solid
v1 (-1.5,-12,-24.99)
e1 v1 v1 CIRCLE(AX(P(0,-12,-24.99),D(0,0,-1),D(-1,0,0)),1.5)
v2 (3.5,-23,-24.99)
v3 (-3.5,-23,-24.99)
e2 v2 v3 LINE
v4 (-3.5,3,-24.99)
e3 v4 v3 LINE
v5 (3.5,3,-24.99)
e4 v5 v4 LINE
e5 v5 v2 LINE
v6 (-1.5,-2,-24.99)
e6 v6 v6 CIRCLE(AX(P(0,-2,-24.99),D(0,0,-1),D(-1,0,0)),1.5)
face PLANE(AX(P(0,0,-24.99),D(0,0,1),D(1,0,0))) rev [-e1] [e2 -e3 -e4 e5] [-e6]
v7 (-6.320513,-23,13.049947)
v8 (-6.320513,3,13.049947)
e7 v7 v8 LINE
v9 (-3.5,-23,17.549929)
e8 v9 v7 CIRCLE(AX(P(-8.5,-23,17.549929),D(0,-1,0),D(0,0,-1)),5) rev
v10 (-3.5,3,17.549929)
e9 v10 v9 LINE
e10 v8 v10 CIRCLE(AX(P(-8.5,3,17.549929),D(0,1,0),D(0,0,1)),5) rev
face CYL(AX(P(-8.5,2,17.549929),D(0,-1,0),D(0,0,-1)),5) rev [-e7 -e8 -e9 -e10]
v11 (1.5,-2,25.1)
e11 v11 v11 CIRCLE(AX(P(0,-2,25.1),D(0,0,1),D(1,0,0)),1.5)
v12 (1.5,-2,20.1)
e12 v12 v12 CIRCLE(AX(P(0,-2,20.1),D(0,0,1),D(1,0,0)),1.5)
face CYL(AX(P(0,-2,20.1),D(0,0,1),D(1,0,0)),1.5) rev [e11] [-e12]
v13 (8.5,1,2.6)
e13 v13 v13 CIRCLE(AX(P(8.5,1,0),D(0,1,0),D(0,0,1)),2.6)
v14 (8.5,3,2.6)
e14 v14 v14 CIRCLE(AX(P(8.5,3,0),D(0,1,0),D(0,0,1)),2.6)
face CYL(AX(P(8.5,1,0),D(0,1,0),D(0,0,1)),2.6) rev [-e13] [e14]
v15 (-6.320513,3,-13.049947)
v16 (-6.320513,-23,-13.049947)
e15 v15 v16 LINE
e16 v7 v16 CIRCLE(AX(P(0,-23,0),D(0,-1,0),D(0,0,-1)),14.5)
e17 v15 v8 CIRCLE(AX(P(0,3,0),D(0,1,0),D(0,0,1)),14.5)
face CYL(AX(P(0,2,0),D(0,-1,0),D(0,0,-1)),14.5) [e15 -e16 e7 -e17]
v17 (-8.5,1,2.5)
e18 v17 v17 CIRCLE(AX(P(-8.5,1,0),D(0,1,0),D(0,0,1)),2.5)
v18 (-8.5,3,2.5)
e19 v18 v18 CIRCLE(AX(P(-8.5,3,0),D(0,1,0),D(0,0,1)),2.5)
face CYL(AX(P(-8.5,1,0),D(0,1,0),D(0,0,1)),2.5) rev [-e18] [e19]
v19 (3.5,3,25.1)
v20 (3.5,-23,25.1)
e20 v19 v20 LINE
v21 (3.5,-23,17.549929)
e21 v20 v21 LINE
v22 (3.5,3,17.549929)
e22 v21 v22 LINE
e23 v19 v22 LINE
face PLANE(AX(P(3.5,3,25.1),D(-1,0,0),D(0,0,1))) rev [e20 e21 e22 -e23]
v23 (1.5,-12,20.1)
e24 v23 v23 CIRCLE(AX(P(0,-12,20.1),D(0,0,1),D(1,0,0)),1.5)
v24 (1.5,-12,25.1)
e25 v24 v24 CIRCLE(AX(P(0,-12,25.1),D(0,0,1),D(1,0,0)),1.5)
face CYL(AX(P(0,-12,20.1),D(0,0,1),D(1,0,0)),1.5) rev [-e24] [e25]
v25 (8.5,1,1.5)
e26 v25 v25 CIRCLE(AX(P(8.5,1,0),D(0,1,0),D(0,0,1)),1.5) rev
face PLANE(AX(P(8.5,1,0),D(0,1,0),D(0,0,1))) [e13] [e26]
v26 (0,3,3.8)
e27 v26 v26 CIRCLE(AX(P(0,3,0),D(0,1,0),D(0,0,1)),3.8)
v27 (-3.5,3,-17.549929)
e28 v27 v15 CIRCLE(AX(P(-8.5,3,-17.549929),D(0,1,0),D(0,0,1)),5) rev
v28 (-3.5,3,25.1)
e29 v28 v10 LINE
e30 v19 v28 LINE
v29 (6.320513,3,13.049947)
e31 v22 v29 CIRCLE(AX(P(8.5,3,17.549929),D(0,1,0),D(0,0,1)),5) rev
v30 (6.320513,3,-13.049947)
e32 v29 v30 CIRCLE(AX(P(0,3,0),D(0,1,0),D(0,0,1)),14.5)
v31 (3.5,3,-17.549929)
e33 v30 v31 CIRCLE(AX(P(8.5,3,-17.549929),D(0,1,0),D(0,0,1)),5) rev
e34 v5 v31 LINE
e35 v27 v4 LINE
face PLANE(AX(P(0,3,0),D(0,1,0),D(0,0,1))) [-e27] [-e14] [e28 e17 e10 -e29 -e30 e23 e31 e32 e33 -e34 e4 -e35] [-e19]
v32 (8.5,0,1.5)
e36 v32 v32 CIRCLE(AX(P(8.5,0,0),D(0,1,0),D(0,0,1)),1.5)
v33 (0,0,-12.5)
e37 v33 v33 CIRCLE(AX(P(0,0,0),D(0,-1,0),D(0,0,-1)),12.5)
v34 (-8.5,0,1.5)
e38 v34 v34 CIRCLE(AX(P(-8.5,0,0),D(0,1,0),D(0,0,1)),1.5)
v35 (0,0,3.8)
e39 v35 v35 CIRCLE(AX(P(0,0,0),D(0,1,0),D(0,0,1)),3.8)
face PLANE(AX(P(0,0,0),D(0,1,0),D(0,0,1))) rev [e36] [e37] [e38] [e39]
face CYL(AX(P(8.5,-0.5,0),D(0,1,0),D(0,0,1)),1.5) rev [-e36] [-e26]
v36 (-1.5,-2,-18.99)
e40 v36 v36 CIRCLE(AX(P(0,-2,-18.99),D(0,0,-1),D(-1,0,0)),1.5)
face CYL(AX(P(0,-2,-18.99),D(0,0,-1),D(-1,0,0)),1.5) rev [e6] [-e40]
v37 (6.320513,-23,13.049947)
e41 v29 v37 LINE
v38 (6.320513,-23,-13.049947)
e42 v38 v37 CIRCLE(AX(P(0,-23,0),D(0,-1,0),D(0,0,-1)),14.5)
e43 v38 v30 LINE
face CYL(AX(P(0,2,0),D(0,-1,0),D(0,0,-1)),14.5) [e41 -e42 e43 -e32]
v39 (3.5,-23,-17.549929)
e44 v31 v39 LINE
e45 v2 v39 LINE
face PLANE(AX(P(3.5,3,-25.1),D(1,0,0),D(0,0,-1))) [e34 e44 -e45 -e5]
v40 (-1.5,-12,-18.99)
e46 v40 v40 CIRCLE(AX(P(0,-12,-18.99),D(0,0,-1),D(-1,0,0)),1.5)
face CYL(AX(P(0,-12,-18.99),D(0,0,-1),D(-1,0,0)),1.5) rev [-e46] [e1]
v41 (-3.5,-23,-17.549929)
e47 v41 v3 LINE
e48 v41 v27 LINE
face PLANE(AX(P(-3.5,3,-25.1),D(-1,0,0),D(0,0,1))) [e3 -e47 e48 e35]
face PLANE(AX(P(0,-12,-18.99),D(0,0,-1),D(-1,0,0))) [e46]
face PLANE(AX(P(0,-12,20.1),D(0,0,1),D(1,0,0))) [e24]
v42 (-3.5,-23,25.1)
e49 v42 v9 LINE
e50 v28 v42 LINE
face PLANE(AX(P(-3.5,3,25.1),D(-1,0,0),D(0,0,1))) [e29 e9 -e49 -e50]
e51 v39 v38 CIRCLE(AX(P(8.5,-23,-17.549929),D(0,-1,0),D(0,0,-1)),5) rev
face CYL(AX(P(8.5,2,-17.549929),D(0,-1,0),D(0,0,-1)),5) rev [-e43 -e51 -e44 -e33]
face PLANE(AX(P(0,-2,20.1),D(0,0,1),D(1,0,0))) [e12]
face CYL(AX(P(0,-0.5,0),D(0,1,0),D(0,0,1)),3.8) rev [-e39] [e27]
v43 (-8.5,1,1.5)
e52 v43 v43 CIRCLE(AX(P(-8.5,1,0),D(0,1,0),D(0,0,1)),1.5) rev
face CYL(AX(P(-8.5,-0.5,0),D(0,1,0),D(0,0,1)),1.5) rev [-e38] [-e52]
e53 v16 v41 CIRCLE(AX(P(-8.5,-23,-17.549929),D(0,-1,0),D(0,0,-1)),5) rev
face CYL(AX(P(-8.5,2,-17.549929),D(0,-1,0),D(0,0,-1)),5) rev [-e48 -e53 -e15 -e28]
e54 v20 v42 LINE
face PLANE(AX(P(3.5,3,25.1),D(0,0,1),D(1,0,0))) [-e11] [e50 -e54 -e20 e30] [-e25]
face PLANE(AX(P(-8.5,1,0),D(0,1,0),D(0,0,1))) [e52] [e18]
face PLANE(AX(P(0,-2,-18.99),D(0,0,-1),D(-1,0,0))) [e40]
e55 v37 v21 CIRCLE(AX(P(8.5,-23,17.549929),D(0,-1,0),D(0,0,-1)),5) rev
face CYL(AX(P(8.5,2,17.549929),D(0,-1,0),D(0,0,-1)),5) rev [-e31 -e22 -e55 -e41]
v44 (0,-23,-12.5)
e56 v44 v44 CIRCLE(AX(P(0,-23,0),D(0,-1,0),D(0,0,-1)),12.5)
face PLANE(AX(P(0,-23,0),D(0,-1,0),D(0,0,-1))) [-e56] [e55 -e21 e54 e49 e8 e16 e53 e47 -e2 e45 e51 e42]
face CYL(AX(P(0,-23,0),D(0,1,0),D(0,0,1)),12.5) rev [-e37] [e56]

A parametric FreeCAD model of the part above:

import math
import FreeCAD as App
import Part
import Sketcher
Q = App.Units.Quantity


def edges_at(feature, points):
    """Names of the edges that pass closest to the given points."""
    edges = feature.Shape.Edges
    near = lambda p: min(range(len(edges)), key=lambda i: edges[i].distToShape(Part.Vertex(*p))[0])
    return sorted({f"Edge{near(p) + 1}" for p in points})


def add_polygon(sketch, points):
    """Adds a closed chain of lines whose ends are joined by coincident constraints."""
    first, n = sketch.GeometryCount, len(points)
    for a, b in zip(points, points[1:] + points[:1]):
        sketch.addGeometry(Part.LineSegment(App.Vector(*a, 0), App.Vector(*b, 0)), False)
    for i in range(n):
        sketch.addConstraint(Sketcher.Constraint("Coincident", first + i, 2, first + (i + 1) % n, 1))

doc = App.newDocument("Part")
body = doc.addObject("PartDesign::Body", "Body")

sketch1 = body.newObject("Sketcher::SketchObject", "Sketch")
sketch1.AttachmentSupport = (doc.getObject("XZ_Plane"), [""])
sketch1.MapMode = "FlatFace"
sketch1.addGeometry(Part.Circle(App.Vector(0, 0, 0), App.Vector(0, 0, 1), 14), False)
sketch1.addConstraint([
    Sketcher.Constraint("Coincident", 0, 3, -1, 1),
    Sketcher.Constraint("Diameter", 0, Q("29 mm")),
])
pad1 = body.newObject("PartDesign::Pad", "Pad")
pad1.Profile = sketch1
pad1.Length = 2
pad1.Reversed = True

sketch2 = body.newObject("Sketcher::SketchObject", "Sketch001")
sketch2.AttachmentSupport = (doc.getObject("XZ_Plane"), [""])
sketch2.MapMode = "FlatFace"
sketch2.AttachmentOffset = App.Placement(App.Vector(0, 0, -2), App.Rotation())
sketch2.addGeometry([
    Part.Circle(App.Vector(0, 0, 0), App.Vector(0, 0, 1), 3.8),
    Part.Circle(App.Vector(-8.5, 0, 0), App.Vector(0, 0, 1), 1.5),
    Part.Circle(App.Vector(8.5, 0, 0), App.Vector(0, 0, 1), 1.5),
], False)
sketch2.addConstraint([
    Sketcher.Constraint("Coincident", 0, 3, -1, 1),
    Sketcher.Constraint("Equal", 1, 2),
    Sketcher.Constraint("Symmetric", 1, 3, 2, 3, -1, 1),
    Sketcher.Constraint("PointOnObject", 1, 3, -1),
    Sketcher.Constraint("Diameter", 1, Q("3 mm")),
    Sketcher.Constraint("Diameter", 0, Q("7.6 mm")),
    Sketcher.Constraint("DistanceX", 1, 3, 2, 3, Q("17 mm")),
])
pocket1 = body.newObject("PartDesign::Pocket", "Pocket")
pocket1.Profile = sketch2
pocket1.Length = 2.5
pocket1.Reversed = True

sketch3 = body.newObject("Sketcher::SketchObject", "Sketch002")
sketch3.AttachmentSupport = (doc.getObject("XZ_Plane"), [""])
sketch3.MapMode = "FlatFace"
sketch3.addGeometry([
    Part.Circle(App.Vector(0, 0, 0), App.Vector(0, 0, 1), 14),
    Part.Circle(App.Vector(0, 0, 0), App.Vector(0, 0, 1), 12),
], False)
sketch3.addConstraint([
    Sketcher.Constraint("Coincident", 0, 3, -1, 1),
    Sketcher.Constraint("Coincident", 1, 3, -1, 1),
    Sketcher.Constraint("Diameter", 0, Q("29 mm")),
    Sketcher.Constraint("Diameter", 1, Q("25 mm")),
])
pad2 = body.newObject("PartDesign::Pad", "Pad001")
pad2.Profile = sketch3
pad2.Length = 23

sketch4 = body.newObject("Sketcher::SketchObject", "Sketch003")
sketch4.AttachmentSupport = (doc.getObject("XZ_Plane"), [""])
sketch4.MapMode = "FlatFace"
sketch4.AttachmentOffset = App.Placement(App.Vector(0, 0, -2), App.Rotation())
sketch4.addGeometry([
    Part.Circle(App.Vector(0, 0, 0), App.Vector(0, 0, 1), 14.5),
    Part.Circle(App.Vector(-8.5, 0, 0), App.Vector(0, 0, 1), 1.5),
    Part.Circle(App.Vector(0, 0, 0), App.Vector(0, 0, 1), 3.8),
    Part.Circle(App.Vector(8.5, 0, 0), App.Vector(0, 0, 1), 1.5),
], False)
sketch4.addConstraint([
    Sketcher.Constraint("Coincident", 0, 3, -1, 1),
    Sketcher.Constraint("Coincident", 2, 3, -1, 1),
    Sketcher.Constraint("Equal", 1, 3),
    Sketcher.Constraint("Symmetric", 1, 3, 3, 3, -1, 1),
    Sketcher.Constraint("PointOnObject", 1, 3, -1),
    Sketcher.Constraint("Diameter", 0, Q("29 mm")),
    Sketcher.Constraint("Diameter", 1, Q("3 mm")),
    Sketcher.Constraint("Diameter", 2, Q("7.6 mm")),
    Sketcher.Constraint("DistanceX", 1, 3, 3, 3, Q("17 mm")),
])
pad3 = body.newObject("PartDesign::Pad", "Pad002")
pad3.Profile = sketch4
pad3.Length = 1
pad3.Reversed = True

sketch5 = body.newObject("Sketcher::SketchObject", "Sketch004")
sketch5.AttachmentSupport = (doc.getObject("XZ_Plane"), [""])
sketch5.MapMode = "FlatFace"
sketch5.AttachmentOffset = App.Placement(App.Vector(0, 0, -3), App.Rotation())
sketch5.addGeometry([
    Part.Circle(App.Vector(8.5, 0, 0), App.Vector(0, 0, 1), 2.6),
    Part.Circle(App.Vector(-8.5, 0, 0), App.Vector(0, 0, 1), 2.5),
], False)
sketch5.addConstraint([
    Sketcher.Constraint("Symmetric", 0, 3, 1, 3, -1, 1),
    Sketcher.Constraint("PointOnObject", 0, 3, -1),
    Sketcher.Constraint("Diameter", 1, Q("5 mm")),
    Sketcher.Constraint("Diameter", 0, Q("5.2 mm")),
    Sketcher.Constraint("DistanceX", 1, 3, 0, 3, Q("17 mm")),
])
pocket2 = body.newObject("PartDesign::Pocket", "Pocket001")
pocket2.Profile = sketch5
pocket2.Length = 2
pocket2.Reversed = True

sketch6 = body.newObject("Sketcher::SketchObject", "Sketch005")
sketch6.AttachmentSupport = (doc.getObject("XZ_Plane"), [""])
sketch6.MapMode = "FlatFace"
sketch6.AttachmentOffset = App.Placement(App.Vector(0, 0, 23), App.Rotation())
sketch6.addGeometry([
    Part.LineSegment(App.Vector(-4, -25, 0), App.Vector(4, -25, 0)),
    Part.LineSegment(App.Vector(4, -25, 0), App.Vector(4, -14, 0)),
    Part.ArcOfCircle(Part.Circle(App.Vector(0, 0, 0), App.Vector(0, 0, 1), 14), math.radians(-104), math.radians(-76)),
    Part.LineSegment(App.Vector(-4, -14, 0), App.Vector(-4, -25, 0)),
], False)
sketch6.addConstraint([
    Sketcher.Constraint("Coincident", 0, 2, 1, 1),
    Sketcher.Constraint("Coincident", 1, 2, 2, 2),
    Sketcher.Constraint("Coincident", 2, 1, 3, 1),
    Sketcher.Constraint("Coincident", 3, 2, 0, 1),
    Sketcher.Constraint("Horizontal", 0),
    Sketcher.Constraint("Vertical", 1),
    Sketcher.Constraint("Vertical", 3),
    Sketcher.Constraint("Coincident", 2, 3, -1, 1),
    Sketcher.Constraint("Horizontal", 1, 2, 2, 1),
    Sketcher.Constraint("Radius", 2, Q("14.5 mm")),
    Sketcher.Constraint("DistanceX", 0, 1, 0, 2, Q("7 mm")),
    Sketcher.Constraint("DistanceY", 0, 2, -1, 1, Q("25.1 mm")),
])
pad4 = body.newObject("PartDesign::Pad", "Pad003")
pad4.Profile = sketch6
pad4.Length = 26
pad4.Reversed = True

sketch7 = body.newObject("Sketcher::SketchObject", "Sketch006")
sketch7.AttachmentSupport = (doc.getObject("XY_Plane"), [""])
sketch7.MapMode = "FlatFace"
sketch7.AttachmentOffset = App.Placement(App.Vector(0, 0, -25.1), App.Rotation())
add_polygon(sketch7, [(4, 3), (4, -23), (-4, -23), (-4, 3)])
sketch7.addConstraint([
    Sketcher.Constraint("Vertical", 0),
    Sketcher.Constraint("Horizontal", 1),
    Sketcher.Constraint("Vertical", 2),
    Sketcher.Constraint("Horizontal", 3),
    Sketcher.Constraint("DistanceX", 1, 2, 1, 1, Q("7 mm")),
    Sketcher.Constraint("DistanceY", 0, 2, 0, 1, Q("26 mm")),
    Sketcher.Constraint("DistanceY", 0, 2, -1, 1, Q("23 mm")),
    Sketcher.Constraint("DistanceX", -1, 1, 0, 2, Q("3.5 mm")),
])
pocket3 = body.newObject("PartDesign::Pocket", "Pocket002")
pocket3.Profile = sketch7
pocket3.Length = 0.11
pocket3.Reversed = True

sketch8 = body.newObject("Sketcher::SketchObject", "Sketch007")
sketch8.AttachmentSupport = (doc.getObject("XY_Plane"), [""])
sketch8.MapMode = "FlatFace"
sketch8.AttachmentOffset = App.Placement(App.Vector(0, 0, -24.99), App.Rotation())
sketch8.addGeometry([
    Part.Circle(App.Vector(0, -2, 0), App.Vector(0, 0, 1), 1.5),
    Part.Circle(App.Vector(0, -12, 0), App.Vector(0, 0, 1), 1.5),
], False)
sketch8.addConstraint([
    Sketcher.Constraint("Equal", 0, 1),
    Sketcher.Constraint("PointOnObject", 0, 3, -2),
    Sketcher.Constraint("PointOnObject", 1, 3, -2),
    Sketcher.Constraint("Diameter", 0, Q("3 mm")),
    Sketcher.Constraint("DistanceY", 0, 3, -1, 1, Q("2 mm")),
    Sketcher.Constraint("DistanceY", 1, 3, -1, 1, Q("12 mm")),
])
pocket4 = body.newObject("PartDesign::Pocket", "Pocket003")
pocket4.Profile = sketch8
pocket4.Length = 6
pocket4.Reversed = True

sketch9 = body.newObject("Sketcher::SketchObject", "Sketch008")
sketch9.AttachmentSupport = (doc.getObject("XZ_Plane"), [""])
sketch9.MapMode = "FlatFace"
sketch9.AttachmentOffset = App.Placement(App.Vector(0, 0, 23), App.Rotation())
sketch9.addGeometry([
    Part.LineSegment(App.Vector(4, 25, 0), App.Vector(-4, 25, 0)),
    Part.LineSegment(App.Vector(-4, 25, 0), App.Vector(-4, 14, 0)),
    Part.ArcOfCircle(Part.Circle(App.Vector(0, 0, 0), App.Vector(0, 0, 1), 14), math.radians(76), math.radians(104)),
    Part.LineSegment(App.Vector(4, 14, 0), App.Vector(4, 25, 0)),
], False)
sketch9.addConstraint([
    Sketcher.Constraint("Coincident", 0, 2, 1, 1),
    Sketcher.Constraint("Coincident", 1, 2, 2, 2),
    Sketcher.Constraint("Coincident", 2, 1, 3, 1),
    Sketcher.Constraint("Coincident", 3, 2, 0, 1),
    Sketcher.Constraint("Horizontal", 0),
    Sketcher.Constraint("Vertical", 1),
    Sketcher.Constraint("Vertical", 3),
    Sketcher.Constraint("Coincident", 2, 3, -1, 1),
    Sketcher.Constraint("Horizontal", 1, 2, 2, 1),
    Sketcher.Constraint("Radius", 2, Q("14.5 mm")),
    Sketcher.Constraint("DistanceX", 0, 2, 0, 1, Q("7 mm")),
    Sketcher.Constraint("DistanceY", -1, 1, 0, 2, Q("25.1 mm")),
])
pad5 = body.newObject("PartDesign::Pad", "Pad004")
pad5.Profile = sketch9
pad5.Length = 26
pad5.Reversed = True

sketch10 = body.newObject("Sketcher::SketchObject", "Sketch009")
sketch10.AttachmentSupport = (doc.getObject("XY_Plane"), [""])
sketch10.MapMode = "FlatFace"
sketch10.AttachmentOffset = App.Placement(App.Vector(0, 0, 25.1), App.Rotation())
sketch10.addGeometry([
    Part.Circle(App.Vector(0, -2, 0), App.Vector(0, 0, 1), 1.5),
    Part.Circle(App.Vector(0, -12, 0), App.Vector(0, 0, 1), 1.5),
], False)
sketch10.addConstraint([
    Sketcher.Constraint("Equal", 0, 1),
    Sketcher.Constraint("PointOnObject", 0, 3, -2),
    Sketcher.Constraint("PointOnObject", 1, 3, -2),
    Sketcher.Constraint("Diameter", 0, Q("3 mm")),
    Sketcher.Constraint("DistanceY", 0, 3, -1, 1, Q("2 mm")),
    Sketcher.Constraint("DistanceY", 1, 3, -1, 1, Q("12 mm")),
])
pocket5 = body.newObject("PartDesign::Pocket", "Pocket004")
pocket5.Profile = sketch10
pocket5.Length = 5
doc.recompute()

fillet = body.newObject("PartDesign::Fillet", "Fillet")
fillet.Base = (pocket5, edges_at(pocket5, [
    (-3.5, -10, -14.071),
    (3.5, -10, -14.071),
    (3.5, -10, 14.071),
    (-3.5, -10, 14.071),
]))
fillet.Radius = 5

doc.recompute()
